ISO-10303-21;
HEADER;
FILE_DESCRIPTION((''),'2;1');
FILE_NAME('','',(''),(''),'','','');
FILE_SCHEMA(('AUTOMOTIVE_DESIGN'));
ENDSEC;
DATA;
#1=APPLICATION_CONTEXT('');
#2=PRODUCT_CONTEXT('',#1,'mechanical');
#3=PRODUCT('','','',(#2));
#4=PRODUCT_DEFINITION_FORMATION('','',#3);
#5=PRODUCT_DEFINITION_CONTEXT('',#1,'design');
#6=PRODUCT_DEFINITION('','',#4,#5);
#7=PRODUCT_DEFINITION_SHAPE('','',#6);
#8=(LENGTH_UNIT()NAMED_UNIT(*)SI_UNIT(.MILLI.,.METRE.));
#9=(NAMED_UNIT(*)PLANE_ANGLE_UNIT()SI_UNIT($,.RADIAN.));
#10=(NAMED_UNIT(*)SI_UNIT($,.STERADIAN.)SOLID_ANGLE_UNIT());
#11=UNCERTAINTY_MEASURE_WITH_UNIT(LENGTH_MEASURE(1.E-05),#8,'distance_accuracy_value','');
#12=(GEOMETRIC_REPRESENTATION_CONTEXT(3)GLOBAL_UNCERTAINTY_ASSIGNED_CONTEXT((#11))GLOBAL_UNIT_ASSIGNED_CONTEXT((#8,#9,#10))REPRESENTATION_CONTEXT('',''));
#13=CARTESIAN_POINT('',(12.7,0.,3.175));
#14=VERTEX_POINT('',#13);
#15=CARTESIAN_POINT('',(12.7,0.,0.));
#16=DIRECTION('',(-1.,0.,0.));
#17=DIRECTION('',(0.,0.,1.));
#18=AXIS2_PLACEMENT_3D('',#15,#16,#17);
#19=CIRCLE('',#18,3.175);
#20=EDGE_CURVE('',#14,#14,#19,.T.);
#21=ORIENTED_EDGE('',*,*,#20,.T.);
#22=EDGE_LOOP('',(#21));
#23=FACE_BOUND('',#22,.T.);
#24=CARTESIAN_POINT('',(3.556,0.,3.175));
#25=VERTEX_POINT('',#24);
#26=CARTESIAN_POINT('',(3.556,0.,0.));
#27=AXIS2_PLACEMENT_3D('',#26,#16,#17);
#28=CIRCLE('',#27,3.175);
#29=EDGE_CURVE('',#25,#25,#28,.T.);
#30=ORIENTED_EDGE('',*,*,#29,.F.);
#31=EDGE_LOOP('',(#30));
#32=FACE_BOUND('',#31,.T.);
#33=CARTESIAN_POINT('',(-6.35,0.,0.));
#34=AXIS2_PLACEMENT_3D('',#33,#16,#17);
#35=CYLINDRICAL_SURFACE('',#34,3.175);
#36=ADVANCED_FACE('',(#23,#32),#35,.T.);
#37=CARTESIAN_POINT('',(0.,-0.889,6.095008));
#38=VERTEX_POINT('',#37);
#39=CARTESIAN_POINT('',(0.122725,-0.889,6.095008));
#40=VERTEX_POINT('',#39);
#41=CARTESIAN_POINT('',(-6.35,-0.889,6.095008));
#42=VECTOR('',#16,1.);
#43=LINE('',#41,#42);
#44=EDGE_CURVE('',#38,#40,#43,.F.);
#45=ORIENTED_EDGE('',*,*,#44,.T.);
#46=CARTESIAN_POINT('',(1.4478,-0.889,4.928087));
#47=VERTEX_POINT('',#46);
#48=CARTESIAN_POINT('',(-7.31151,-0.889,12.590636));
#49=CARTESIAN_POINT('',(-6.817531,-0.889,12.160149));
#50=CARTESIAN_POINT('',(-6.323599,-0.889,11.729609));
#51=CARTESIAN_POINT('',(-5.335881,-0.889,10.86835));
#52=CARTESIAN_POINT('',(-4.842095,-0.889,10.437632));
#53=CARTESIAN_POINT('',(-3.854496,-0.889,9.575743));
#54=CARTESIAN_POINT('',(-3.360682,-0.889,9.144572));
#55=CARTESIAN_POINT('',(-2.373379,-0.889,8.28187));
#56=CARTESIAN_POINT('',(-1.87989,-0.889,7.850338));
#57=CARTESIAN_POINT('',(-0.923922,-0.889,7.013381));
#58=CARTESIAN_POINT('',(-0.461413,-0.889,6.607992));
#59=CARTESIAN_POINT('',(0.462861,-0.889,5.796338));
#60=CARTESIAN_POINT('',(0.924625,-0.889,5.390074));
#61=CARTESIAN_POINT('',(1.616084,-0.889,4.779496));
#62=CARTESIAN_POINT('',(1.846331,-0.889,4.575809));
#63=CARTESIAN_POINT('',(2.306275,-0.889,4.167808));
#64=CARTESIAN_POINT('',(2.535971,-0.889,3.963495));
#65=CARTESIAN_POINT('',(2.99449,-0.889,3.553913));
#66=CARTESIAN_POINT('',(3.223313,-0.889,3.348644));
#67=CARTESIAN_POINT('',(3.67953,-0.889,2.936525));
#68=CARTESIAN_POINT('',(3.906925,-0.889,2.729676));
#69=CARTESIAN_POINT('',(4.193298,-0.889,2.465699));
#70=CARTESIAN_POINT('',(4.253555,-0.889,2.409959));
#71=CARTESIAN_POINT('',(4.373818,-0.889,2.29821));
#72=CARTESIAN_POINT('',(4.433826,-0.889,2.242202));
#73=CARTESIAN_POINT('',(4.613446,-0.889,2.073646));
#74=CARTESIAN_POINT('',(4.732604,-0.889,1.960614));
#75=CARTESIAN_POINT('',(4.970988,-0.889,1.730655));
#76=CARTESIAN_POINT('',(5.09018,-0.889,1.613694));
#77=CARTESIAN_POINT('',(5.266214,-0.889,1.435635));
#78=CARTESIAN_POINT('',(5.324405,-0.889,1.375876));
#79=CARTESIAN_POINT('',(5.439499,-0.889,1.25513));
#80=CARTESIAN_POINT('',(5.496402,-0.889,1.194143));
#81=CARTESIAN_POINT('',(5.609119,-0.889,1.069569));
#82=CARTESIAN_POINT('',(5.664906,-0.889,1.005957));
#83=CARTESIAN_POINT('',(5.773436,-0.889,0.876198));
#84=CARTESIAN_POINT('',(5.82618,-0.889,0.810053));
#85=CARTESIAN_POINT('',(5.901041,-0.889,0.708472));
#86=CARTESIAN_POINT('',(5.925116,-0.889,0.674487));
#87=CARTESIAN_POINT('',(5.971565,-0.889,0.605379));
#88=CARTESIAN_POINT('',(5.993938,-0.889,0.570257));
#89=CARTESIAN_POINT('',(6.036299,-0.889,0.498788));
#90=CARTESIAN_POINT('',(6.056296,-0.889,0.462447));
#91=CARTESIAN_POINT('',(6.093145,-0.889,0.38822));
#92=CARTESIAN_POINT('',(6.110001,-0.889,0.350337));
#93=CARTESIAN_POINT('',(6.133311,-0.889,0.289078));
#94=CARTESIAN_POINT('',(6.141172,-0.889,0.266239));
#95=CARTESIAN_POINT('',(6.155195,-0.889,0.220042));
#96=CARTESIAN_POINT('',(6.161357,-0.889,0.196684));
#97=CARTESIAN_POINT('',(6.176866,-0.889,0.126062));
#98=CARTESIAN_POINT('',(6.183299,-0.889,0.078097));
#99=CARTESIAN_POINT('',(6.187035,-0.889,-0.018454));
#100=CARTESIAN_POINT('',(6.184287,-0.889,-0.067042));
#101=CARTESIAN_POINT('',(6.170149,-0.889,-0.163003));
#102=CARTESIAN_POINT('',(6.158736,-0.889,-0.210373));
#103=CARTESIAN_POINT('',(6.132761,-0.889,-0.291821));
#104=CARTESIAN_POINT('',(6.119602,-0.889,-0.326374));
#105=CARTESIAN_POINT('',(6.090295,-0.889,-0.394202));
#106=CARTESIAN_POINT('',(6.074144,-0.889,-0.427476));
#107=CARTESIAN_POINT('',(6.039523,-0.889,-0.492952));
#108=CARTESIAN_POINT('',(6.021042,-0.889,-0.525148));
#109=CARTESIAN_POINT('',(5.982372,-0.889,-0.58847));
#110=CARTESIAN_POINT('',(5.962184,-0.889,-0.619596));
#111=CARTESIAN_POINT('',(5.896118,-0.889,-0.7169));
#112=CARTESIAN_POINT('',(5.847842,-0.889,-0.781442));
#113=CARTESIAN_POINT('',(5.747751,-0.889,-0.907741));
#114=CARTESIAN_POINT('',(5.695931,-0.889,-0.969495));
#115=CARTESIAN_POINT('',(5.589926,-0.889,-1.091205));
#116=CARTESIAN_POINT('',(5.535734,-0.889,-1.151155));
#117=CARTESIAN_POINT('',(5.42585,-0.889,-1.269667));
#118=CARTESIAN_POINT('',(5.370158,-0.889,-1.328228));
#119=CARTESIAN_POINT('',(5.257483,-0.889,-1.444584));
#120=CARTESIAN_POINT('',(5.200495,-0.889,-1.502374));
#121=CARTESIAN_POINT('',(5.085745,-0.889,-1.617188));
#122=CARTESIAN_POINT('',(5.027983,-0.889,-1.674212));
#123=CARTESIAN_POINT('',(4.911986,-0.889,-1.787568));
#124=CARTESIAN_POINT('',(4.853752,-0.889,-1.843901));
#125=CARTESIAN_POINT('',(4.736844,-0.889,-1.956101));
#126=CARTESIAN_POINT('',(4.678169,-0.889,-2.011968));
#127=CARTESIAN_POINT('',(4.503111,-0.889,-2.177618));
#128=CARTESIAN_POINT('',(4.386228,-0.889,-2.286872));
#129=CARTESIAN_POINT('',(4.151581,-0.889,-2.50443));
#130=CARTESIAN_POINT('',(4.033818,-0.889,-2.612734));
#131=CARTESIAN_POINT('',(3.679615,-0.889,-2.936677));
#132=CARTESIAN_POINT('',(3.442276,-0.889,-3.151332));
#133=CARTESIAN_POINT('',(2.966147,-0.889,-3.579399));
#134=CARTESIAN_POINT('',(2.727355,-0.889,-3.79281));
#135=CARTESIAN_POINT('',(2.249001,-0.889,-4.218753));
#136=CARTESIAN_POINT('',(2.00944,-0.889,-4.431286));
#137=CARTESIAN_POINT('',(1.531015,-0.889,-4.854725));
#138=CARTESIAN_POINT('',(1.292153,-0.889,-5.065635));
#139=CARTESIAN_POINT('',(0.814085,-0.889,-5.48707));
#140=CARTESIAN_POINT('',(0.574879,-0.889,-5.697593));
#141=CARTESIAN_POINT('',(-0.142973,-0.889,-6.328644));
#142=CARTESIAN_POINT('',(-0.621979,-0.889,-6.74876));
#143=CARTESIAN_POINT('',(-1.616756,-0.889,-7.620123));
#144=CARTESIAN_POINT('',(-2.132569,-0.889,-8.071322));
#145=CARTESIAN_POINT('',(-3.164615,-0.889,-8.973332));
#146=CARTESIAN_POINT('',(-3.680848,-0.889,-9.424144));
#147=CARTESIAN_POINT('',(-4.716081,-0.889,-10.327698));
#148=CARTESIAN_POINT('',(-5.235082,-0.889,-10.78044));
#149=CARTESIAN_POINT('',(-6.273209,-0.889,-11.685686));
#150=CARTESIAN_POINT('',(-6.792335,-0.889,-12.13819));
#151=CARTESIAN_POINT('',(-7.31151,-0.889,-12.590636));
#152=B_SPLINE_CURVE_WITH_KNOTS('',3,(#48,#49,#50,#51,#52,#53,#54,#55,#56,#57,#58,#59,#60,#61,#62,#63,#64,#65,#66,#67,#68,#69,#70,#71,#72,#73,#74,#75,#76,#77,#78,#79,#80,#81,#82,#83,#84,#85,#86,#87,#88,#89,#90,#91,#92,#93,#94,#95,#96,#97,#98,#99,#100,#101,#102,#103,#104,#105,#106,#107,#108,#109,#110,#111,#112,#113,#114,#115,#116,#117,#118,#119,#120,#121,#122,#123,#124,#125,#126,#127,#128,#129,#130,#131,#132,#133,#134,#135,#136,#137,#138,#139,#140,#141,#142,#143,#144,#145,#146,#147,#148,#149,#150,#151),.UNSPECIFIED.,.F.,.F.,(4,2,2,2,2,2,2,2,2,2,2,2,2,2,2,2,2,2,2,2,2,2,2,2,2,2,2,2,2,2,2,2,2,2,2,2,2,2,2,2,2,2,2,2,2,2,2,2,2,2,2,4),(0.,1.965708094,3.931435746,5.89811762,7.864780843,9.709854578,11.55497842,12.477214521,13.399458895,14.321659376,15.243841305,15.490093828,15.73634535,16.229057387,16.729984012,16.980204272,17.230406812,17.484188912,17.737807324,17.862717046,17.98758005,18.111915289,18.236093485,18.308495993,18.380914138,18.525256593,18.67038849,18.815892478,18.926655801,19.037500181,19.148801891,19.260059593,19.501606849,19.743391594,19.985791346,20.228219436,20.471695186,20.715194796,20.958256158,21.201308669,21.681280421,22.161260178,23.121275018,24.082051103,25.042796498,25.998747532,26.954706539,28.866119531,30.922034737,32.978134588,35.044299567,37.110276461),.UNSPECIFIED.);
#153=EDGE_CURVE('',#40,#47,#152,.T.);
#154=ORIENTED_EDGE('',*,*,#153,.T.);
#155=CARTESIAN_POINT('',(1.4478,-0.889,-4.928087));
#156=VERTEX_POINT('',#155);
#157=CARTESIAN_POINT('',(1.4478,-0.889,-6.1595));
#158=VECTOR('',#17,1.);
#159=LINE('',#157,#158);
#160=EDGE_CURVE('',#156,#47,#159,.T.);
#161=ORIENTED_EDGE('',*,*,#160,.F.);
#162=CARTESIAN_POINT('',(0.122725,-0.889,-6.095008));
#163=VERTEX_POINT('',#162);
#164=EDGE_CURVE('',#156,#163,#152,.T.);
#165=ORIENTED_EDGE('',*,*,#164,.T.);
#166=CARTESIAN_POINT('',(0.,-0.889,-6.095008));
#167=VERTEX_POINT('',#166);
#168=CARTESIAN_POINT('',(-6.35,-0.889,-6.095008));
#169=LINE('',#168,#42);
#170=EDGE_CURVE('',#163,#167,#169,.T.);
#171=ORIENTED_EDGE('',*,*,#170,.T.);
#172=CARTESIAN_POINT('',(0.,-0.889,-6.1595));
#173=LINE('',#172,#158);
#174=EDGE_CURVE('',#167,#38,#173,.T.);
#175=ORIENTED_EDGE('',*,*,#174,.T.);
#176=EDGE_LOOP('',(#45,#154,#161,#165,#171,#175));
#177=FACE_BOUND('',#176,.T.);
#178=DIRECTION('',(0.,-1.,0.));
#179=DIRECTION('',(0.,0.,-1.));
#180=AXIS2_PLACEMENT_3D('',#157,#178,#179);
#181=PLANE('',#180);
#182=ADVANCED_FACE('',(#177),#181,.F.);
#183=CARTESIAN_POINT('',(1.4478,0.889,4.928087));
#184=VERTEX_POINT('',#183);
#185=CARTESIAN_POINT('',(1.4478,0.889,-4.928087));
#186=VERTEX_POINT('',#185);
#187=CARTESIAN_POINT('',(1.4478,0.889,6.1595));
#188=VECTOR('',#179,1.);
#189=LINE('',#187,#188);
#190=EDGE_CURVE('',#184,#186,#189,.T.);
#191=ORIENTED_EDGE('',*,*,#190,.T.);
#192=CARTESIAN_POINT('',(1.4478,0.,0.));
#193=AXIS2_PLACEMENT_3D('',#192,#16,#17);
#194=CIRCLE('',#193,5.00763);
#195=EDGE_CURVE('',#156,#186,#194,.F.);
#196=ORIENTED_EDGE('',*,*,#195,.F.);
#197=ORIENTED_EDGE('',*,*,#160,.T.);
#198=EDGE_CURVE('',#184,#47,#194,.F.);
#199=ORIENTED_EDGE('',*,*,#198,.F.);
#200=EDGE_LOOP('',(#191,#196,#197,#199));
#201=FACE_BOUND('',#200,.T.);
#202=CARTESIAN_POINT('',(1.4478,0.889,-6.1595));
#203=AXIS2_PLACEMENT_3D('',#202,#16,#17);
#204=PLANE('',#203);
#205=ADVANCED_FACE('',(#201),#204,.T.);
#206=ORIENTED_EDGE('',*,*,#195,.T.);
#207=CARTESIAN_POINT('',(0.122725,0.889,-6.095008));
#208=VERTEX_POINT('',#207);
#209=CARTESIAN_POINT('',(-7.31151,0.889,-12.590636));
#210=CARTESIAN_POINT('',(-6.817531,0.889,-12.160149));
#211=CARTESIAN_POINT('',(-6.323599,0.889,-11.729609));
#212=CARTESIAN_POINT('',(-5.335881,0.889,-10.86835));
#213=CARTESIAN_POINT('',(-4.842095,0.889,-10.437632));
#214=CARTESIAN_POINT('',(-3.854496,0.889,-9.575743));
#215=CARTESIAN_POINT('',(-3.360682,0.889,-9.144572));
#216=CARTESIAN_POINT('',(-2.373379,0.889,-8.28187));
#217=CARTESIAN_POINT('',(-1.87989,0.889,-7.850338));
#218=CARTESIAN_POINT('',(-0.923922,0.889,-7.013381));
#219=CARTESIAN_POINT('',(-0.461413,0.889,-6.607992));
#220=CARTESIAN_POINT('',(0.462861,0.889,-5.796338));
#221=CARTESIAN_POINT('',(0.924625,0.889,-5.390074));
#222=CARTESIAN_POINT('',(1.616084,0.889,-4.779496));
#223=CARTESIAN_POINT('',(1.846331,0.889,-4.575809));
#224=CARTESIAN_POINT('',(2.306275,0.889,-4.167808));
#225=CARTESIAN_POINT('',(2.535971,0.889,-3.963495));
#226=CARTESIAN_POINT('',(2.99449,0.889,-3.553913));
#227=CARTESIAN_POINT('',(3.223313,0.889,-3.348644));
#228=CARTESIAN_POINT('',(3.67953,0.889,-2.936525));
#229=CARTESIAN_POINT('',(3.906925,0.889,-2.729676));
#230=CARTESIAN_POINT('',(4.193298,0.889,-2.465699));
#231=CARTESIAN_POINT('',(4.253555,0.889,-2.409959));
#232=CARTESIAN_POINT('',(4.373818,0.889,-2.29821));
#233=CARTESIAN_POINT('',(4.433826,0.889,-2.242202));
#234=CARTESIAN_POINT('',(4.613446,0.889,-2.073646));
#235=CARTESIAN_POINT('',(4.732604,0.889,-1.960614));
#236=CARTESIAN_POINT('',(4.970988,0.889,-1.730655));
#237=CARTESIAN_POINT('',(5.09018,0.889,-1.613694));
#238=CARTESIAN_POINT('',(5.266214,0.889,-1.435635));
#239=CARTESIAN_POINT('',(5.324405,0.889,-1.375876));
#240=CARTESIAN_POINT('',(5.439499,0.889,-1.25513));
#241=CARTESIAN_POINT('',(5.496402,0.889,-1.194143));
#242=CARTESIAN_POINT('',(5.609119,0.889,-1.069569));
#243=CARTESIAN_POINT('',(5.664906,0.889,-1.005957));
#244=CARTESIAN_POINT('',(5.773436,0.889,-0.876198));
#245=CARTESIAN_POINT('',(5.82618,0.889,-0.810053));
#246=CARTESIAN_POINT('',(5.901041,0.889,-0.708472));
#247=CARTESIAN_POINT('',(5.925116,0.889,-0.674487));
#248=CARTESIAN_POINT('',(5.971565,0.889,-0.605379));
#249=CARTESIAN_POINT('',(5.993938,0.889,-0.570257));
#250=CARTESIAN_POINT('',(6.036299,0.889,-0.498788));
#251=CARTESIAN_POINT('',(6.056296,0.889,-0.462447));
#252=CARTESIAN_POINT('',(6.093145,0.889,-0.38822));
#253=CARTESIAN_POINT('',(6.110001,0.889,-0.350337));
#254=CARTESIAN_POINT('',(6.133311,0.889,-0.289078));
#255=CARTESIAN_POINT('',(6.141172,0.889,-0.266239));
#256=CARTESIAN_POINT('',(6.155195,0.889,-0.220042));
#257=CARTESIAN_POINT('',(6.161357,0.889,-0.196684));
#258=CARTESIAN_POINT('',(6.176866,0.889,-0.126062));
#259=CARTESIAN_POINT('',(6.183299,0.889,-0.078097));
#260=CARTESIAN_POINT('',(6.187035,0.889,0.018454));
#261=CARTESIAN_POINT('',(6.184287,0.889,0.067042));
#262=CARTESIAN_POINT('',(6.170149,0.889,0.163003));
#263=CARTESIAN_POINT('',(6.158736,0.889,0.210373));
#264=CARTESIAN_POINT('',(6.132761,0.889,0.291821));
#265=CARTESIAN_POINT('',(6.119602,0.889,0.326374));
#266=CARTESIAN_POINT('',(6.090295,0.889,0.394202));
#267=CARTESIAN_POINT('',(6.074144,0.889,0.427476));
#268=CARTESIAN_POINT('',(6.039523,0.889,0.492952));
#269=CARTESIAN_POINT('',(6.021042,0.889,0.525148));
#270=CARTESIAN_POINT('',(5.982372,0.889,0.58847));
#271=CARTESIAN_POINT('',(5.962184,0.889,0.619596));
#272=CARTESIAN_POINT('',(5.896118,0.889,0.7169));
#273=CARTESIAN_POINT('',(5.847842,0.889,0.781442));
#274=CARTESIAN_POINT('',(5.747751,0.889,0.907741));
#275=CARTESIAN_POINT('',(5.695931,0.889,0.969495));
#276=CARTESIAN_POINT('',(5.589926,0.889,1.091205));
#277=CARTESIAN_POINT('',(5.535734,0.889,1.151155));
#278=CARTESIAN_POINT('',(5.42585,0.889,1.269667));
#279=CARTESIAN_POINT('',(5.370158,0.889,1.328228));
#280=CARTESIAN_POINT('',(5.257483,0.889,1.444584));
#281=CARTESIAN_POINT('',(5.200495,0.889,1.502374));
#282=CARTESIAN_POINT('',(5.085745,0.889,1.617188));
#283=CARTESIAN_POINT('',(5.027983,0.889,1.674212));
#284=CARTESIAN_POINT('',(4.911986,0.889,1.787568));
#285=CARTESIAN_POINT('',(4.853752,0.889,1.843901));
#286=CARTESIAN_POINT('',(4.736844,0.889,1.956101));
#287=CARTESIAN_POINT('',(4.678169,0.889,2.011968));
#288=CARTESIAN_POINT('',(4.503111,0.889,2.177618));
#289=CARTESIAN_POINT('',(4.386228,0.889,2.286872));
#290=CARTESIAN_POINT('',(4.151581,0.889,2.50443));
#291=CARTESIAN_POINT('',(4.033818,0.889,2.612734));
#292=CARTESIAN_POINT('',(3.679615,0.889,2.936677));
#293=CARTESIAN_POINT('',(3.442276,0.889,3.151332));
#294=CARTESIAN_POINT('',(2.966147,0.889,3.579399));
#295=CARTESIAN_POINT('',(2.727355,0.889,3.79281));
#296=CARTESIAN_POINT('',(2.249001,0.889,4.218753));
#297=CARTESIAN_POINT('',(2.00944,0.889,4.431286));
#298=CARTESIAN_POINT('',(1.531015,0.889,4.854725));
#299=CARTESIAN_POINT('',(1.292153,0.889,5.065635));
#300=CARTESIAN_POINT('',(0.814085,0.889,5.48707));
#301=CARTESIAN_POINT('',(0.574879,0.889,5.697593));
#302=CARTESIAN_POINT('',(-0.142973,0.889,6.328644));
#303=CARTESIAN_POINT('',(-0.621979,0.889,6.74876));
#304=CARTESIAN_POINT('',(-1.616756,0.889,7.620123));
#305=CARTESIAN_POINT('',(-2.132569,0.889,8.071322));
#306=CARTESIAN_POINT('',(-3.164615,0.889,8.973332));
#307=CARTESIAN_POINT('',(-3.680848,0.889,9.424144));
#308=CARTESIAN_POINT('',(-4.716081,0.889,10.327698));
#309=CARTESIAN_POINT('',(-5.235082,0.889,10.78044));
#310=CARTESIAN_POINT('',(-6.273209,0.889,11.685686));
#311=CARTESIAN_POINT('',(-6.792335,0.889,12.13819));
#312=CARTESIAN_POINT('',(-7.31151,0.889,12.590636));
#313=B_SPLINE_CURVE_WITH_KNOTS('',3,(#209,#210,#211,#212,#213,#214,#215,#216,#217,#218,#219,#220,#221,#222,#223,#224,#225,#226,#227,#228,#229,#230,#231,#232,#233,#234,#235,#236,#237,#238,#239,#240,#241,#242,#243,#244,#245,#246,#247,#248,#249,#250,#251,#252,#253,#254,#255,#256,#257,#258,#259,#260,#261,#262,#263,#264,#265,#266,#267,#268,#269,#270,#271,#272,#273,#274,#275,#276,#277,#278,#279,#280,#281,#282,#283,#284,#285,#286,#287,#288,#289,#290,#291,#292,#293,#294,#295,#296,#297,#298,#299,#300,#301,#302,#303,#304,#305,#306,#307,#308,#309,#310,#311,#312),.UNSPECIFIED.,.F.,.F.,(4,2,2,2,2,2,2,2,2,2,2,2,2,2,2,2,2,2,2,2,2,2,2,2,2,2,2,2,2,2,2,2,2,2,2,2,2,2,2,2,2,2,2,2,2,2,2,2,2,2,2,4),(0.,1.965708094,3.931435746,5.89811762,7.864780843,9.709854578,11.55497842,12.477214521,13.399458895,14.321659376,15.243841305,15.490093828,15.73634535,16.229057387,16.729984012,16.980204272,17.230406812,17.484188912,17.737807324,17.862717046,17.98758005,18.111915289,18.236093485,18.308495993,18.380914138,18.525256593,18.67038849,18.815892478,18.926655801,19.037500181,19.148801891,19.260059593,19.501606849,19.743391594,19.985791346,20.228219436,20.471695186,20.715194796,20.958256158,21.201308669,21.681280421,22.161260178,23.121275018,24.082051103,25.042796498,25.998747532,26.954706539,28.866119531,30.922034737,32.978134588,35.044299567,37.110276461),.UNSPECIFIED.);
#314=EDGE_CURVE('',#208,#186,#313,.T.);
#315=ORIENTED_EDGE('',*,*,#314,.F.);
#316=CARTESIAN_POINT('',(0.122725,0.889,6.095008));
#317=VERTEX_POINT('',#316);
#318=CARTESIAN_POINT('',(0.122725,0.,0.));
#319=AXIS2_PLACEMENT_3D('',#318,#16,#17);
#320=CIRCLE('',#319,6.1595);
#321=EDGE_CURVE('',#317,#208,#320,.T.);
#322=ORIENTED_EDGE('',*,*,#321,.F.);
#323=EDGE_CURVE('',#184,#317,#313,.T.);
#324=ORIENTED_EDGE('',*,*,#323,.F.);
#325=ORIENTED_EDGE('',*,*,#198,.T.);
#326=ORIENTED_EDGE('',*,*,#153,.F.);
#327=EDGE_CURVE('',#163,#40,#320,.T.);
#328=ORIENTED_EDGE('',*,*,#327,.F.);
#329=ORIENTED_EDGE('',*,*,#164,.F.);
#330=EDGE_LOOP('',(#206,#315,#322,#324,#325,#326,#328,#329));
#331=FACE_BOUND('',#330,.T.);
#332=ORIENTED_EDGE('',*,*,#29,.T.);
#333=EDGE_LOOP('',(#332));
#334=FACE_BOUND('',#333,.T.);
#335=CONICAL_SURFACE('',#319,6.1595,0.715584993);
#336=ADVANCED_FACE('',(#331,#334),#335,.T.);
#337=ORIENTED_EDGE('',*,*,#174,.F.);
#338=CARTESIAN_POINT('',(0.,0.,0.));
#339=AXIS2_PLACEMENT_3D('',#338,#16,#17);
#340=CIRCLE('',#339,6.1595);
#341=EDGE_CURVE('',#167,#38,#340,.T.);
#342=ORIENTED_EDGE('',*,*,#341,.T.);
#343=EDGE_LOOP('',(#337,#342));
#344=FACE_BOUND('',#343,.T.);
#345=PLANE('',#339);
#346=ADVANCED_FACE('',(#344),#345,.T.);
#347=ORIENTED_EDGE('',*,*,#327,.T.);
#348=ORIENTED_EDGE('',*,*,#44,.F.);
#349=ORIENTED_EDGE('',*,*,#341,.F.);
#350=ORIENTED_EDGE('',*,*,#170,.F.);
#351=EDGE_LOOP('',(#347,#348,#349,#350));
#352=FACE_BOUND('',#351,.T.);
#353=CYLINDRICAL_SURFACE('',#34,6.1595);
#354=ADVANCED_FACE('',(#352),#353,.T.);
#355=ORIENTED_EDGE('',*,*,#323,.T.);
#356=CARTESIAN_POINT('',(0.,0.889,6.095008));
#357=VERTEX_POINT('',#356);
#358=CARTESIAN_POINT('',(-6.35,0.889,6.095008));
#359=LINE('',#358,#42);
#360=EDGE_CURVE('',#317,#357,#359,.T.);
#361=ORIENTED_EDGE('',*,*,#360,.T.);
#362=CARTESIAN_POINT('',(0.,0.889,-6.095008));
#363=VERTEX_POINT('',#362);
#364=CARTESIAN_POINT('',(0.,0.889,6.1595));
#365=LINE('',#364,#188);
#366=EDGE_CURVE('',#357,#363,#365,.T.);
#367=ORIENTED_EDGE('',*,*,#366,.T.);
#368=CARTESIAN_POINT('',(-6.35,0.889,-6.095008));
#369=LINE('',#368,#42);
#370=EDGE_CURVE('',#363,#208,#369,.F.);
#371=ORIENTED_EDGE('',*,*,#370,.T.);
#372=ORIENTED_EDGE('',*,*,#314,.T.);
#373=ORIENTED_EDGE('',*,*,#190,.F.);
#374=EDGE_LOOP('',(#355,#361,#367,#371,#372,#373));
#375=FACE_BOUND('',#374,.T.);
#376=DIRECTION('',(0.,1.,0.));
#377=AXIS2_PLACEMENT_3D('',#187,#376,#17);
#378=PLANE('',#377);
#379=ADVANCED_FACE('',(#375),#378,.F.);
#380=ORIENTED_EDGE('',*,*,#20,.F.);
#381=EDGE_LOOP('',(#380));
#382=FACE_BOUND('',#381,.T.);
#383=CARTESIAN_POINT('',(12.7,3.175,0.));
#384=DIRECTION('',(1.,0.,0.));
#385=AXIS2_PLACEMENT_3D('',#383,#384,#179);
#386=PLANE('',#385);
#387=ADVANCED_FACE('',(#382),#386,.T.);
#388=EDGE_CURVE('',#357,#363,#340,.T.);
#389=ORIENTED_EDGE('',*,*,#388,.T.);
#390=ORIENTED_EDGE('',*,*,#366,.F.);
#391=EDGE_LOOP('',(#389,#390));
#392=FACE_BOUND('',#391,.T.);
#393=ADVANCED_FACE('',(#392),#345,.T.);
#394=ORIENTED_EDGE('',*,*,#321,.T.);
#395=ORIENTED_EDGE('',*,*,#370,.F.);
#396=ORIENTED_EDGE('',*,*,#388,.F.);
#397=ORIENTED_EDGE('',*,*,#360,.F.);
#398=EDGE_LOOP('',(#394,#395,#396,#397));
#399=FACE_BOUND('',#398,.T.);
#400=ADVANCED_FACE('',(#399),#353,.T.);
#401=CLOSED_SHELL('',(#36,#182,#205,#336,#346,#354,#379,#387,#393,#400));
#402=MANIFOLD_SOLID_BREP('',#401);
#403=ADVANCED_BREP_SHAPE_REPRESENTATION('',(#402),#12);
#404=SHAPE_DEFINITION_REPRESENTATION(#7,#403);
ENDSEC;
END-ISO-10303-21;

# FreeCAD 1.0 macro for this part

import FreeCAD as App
import Part
import Sketcher

V = App.Vector
Q = App.Units.Quantity


def add_polygon(sketch, points):
    """Adds a closed chain of lines whose ends are joined by coincident constraints."""
    first, n = sketch.GeometryCount, len(points)
    for a, b in zip(points, points[1:] + points[:1]):
        sketch.addGeometry(Part.LineSegment(App.Vector(*a, 0), App.Vector(*b, 0)), False)
    for i in range(n):
        sketch.addConstraint(Sketcher.Constraint("Coincident", first + i, 2, first + (i + 1) % n, 1))

doc = App.newDocument("Part")
body = doc.addObject("PartDesign::Body", "Body")

sketch1 = body.newObject("Sketcher::SketchObject", "Sketch")
sketch1.AttachmentSupport = (doc.getObject("XY_Plane"), [""])
sketch1.MapMode = "FlatFace"
add_polygon(sketch1, [(0, 6.16), (0, 0), (12.7, 0), (12.7, 3.17), (3.56, 3.17), (0.12, 6.16)])
sketch1.addConstraint([
    Sketcher.Constraint("Vertical", 0),
    Sketcher.Constraint("Horizontal", 1),
    Sketcher.Constraint("Vertical", 2),
    Sketcher.Constraint("Horizontal", 3),
    Sketcher.Constraint("Horizontal", 5),
    Sketcher.Constraint("Coincident", 0, 2, -1, 1),
    Sketcher.Constraint("DistanceX", 1, 1, 1, 2, Q("0.5 in")),
    Sketcher.Constraint("Angle", 4, Q("139 deg")),
    Sketcher.Constraint("DistanceX", 3, 2, 3, 1, Q("0.36 in")),
    Sketcher.Constraint("DistanceY", 2, 1, 2, 2, Q("0.125 in")),
    Sketcher.Constraint("DistanceY", 0, 2, 0, 1, Q("0.2425 in")),
])
revolution = body.newObject("PartDesign::Revolution", "Revolution")
revolution.Profile = sketch1
revolution.ReferenceAxis = (sketch1, ["H_Axis"])
revolution.Angle = 360

sketch2 = body.newObject("Sketcher::SketchObject", "Sketch001")
sketch2.AttachmentSupport = (doc.getObject("YZ_Plane"), [""])
sketch2.MapMode = "FlatFace"
add_polygon(sketch2, [(0.9, -6.2), (-0.9, -6.2), (-0.9, 6.2), (0.9, 6.2)])
sketch2.addConstraint([
    Sketcher.Constraint("Horizontal", 0),
    Sketcher.Constraint("Vertical", 1),
    Sketcher.Constraint("Horizontal", 2),
    Sketcher.Constraint("Vertical", 3),
    Sketcher.Constraint("Symmetric", 0, 2, 2, 2, -1, 1),
    Sketcher.Constraint("DistanceX", 0, 2, 0, 1, Q("0.07 in")),
    Sketcher.Constraint("DistanceY", 1, 1, 1, 2, Q("0.485 in")),
])
pocket1 = body.newObject("PartDesign::Pocket", "Pocket")
pocket1.Profile = sketch2
pocket1.Length = Q("0.057 in")
pocket1.Reversed = True

doc.recompute()
